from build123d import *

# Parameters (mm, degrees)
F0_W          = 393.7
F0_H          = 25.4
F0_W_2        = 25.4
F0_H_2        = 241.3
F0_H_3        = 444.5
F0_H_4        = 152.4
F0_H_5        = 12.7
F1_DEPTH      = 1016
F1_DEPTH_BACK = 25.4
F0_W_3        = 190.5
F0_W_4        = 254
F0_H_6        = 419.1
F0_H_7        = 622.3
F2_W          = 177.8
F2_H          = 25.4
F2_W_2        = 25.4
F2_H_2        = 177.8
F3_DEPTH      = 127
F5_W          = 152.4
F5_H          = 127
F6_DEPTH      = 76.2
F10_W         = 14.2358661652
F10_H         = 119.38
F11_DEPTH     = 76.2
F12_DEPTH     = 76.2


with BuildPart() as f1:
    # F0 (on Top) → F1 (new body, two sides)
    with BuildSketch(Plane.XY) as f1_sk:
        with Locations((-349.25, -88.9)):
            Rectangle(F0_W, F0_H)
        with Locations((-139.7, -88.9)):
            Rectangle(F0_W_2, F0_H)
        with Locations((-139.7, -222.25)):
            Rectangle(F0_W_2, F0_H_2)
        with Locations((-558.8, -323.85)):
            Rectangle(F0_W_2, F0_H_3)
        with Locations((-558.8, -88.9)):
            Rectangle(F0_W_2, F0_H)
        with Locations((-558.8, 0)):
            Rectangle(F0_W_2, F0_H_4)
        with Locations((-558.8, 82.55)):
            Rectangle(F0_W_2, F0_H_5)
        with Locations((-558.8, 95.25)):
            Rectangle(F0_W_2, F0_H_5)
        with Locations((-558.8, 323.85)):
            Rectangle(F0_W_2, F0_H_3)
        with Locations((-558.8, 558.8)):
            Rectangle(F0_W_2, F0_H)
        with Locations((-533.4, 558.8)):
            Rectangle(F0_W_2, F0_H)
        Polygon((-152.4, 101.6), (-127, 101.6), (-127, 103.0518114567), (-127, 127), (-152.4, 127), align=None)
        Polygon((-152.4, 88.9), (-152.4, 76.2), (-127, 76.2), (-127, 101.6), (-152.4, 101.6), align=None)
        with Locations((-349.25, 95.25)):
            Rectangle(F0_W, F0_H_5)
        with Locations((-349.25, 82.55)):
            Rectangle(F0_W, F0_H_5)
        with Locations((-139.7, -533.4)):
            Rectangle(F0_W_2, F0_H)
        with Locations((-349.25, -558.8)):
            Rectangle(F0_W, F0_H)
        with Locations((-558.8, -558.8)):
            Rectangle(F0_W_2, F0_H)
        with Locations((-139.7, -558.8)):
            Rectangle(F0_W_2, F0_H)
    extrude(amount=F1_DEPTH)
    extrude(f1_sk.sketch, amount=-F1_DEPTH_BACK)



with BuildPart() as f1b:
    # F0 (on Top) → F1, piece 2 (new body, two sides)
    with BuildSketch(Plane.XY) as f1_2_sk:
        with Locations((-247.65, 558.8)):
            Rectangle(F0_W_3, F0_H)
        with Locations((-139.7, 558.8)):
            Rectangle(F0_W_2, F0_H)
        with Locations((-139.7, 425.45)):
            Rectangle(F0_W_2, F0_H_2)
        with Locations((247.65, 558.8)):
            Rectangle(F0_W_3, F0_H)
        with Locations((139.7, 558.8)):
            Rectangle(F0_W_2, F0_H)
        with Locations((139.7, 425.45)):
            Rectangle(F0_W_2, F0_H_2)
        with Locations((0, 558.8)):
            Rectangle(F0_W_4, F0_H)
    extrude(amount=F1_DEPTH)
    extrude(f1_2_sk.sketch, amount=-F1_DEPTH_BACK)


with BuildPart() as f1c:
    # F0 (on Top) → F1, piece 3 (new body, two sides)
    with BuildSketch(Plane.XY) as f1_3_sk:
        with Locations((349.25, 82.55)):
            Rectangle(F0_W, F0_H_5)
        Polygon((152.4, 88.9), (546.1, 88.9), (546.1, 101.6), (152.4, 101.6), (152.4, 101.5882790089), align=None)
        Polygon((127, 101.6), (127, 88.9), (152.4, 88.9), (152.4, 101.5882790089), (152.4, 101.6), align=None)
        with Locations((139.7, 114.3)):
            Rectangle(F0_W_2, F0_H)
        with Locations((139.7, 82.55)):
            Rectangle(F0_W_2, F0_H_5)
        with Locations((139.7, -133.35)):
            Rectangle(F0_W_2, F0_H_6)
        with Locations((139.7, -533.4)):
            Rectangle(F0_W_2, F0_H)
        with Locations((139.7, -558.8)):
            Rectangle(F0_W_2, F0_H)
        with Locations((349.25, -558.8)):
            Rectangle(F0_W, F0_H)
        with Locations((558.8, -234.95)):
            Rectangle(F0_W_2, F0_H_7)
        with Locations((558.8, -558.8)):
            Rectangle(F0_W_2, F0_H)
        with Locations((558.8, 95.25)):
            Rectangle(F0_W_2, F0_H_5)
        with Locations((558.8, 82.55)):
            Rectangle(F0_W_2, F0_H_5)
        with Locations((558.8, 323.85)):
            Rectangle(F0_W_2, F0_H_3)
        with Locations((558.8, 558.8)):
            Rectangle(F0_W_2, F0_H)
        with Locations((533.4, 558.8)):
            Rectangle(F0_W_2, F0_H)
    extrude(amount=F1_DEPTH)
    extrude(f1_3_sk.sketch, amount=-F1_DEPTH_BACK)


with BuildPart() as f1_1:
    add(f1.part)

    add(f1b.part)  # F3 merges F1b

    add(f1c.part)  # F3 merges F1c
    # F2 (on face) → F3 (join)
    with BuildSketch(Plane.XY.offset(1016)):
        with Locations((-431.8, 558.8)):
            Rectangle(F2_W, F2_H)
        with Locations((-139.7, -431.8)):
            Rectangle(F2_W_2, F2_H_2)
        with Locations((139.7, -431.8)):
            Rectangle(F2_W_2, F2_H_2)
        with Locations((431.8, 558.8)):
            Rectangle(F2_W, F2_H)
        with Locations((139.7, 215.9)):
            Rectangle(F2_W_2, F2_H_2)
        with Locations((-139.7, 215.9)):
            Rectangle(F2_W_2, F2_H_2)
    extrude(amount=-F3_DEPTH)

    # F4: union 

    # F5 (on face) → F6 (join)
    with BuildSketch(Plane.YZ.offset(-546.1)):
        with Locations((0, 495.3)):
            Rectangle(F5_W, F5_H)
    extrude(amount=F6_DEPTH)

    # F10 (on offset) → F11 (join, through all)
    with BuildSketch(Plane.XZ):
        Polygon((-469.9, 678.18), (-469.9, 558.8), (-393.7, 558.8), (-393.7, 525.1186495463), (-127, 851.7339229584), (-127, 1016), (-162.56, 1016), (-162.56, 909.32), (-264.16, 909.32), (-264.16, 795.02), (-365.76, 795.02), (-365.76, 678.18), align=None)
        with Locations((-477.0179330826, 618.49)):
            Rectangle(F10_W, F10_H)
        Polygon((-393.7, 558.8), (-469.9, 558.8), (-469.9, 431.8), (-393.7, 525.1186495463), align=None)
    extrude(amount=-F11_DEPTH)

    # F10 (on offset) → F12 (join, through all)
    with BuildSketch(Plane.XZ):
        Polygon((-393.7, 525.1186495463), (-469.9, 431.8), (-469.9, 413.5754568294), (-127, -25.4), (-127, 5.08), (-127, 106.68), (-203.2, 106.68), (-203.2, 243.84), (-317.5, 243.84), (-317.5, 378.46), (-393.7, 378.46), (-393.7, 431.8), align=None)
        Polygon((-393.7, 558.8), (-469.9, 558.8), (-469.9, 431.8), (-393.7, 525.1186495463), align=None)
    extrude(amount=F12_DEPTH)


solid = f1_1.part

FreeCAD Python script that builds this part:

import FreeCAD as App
import Part
import Sketcher
from FreeCAD import Vector
Q = App.Units.Quantity


def add_polygon(sketch, points):
    """Adds a closed chain of lines whose ends are joined by coincident constraints."""
    first, n = sketch.GeometryCount, len(points)
    for a, b in zip(points, points[1:] + points[:1]):
        sketch.addGeometry(Part.LineSegment(App.Vector(*a, 0), App.Vector(*b, 0)), False)
    for i in range(n):
        sketch.addConstraint(Sketcher.Constraint("Coincident", first + i, 2, first + (i + 1) % n, 1))

doc = App.newDocument("Part")
body = doc.addObject("PartDesign::Body", "Body")

# Sketch on XY plane
sketch1 = body.newObject("Sketcher::SketchObject", "Sketch")
sketch1.AttachmentSupport = (doc.getObject("XY_Plane"), [""])
sketch1.MapMode = "FlatFace"
add_polygon(sketch1, [(-546.1, -101.6), (-152.4, -101.6), (-152.4, -342.9), (-127, -342.9), (-127, -76.2), (-546.1, -76.2), (-546.1, 76.2), (-127, 76.2), (-127, 127), (-152.4, 127), (-152.4, 101.6), (-546.1, 101.6), (-546.1, 546.1), (-520.7, 546.1), (-520.7, 571.5), (-571.5, 571.5), (-571.5, -571.5), (-127, -571.5), (-127, -520.7), (-152.4, -520.7), (-152.4, -546.1), (-546.1, -546.1)])  # lines 0-21
sketch1.addConstraint(Sketcher.Constraint("Horizontal", 0))
sketch1.addConstraint(Sketcher.Constraint("Vertical", 1))
sketch1.addConstraint(Sketcher.Constraint("Horizontal", 2))
sketch1.addConstraint(Sketcher.Constraint("Vertical", 3))
sketch1.addConstraint(Sketcher.Constraint("Horizontal", 4))
sketch1.addConstraint(Sketcher.Constraint("Vertical", 5))
sketch1.addConstraint(Sketcher.Constraint("Horizontal", 6))
sketch1.addConstraint(Sketcher.Constraint("Vertical", 7))
sketch1.addConstraint(Sketcher.Constraint("Horizontal", 8))
sketch1.addConstraint(Sketcher.Constraint("Vertical", 9))
sketch1.addConstraint(Sketcher.Constraint("Horizontal", 10))
sketch1.addConstraint(Sketcher.Constraint("Vertical", 11))
sketch1.addConstraint(Sketcher.Constraint("Horizontal", 12))
sketch1.addConstraint(Sketcher.Constraint("Vertical", 13))
sketch1.addConstraint(Sketcher.Constraint("Horizontal", 14))
sketch1.addConstraint(Sketcher.Constraint("Vertical", 15))
sketch1.addConstraint(Sketcher.Constraint("Horizontal", 16))
sketch1.addConstraint(Sketcher.Constraint("Vertical", 17))
sketch1.addConstraint(Sketcher.Constraint("Horizontal", 18))
sketch1.addConstraint(Sketcher.Constraint("Vertical", 19))
sketch1.addConstraint(Sketcher.Constraint("Horizontal", 20))
sketch1.addConstraint(Sketcher.Constraint("Vertical", 21))
sketch1.addConstraint(Sketcher.Constraint("Symmetric", 3, 2, 6, 2, -1))
sketch1.addConstraint(Sketcher.Constraint("Symmetric", 0, 2, 9, 2, -1))
sketch1.addConstraint(Sketcher.Constraint("Symmetric", 11, 2, 20, 2, -1))
sketch1.addConstraint(Sketcher.Constraint("Vertical", 5, 2, 10, 2))
sketch1.addConstraint(Sketcher.Constraint("Vertical", 7, 2, 16, 2))
sketch1.addConstraint(Sketcher.Constraint("Vertical", 9, 2, 18, 2))
sketch1.addConstraint(Sketcher.Constraint("Equal", 8, 12))
sketch1.addConstraint(Sketcher.Constraint("Equal", 14, 7))
sketch1.addConstraint(Sketcher.Constraint("Equal", 18, 9))
sketch1.addConstraint(Sketcher.Constraint("Equal", 16, 11))
sketch1.addConstraint(Sketcher.Constraint("Equal", 9, 13))
sketch1.addConstraint(Sketcher.Constraint("Equal", 7, 17))
sketch1.addConstraint(Sketcher.Constraint("Equal", 13, 19))
sketch1.addConstraint(Sketcher.Constraint("DistanceX", 2, 1, 2, 2, Q("1 in")))
sketch1.addConstraint(Sketcher.Constraint("DistanceX", 14, 2, 14, 1, Q("2 in")))
sketch1.addConstraint(Sketcher.Constraint("DistanceY", 5, 1, 5, 2, Q("6 in")))
sketch1.addConstraint(Sketcher.Constraint("DistanceY", 15, 2, 15, 1, Q("45 in")))
sketch1.addConstraint(Sketcher.Constraint("DistanceY", 1, 2, 1, 1, Q("9.5 in")))
sketch1.addConstraint(Sketcher.Constraint("DistanceX", 0, 2, -1, 1, Q("6 in")))
pad1 = body.newObject("PartDesign::Pad", "Pad")
pad1.Profile = sketch1
pad1.Type = "TwoLengths"
pad1.Length = Q("40 in")
pad1.Length2 = Q("1 in")
body2 = doc.addObject("PartDesign::Body", "Body001")

# Sketch on XY plane
sketch2 = body2.newObject("Sketcher::SketchObject", "Sketch001")
sketch2.AttachmentSupport = (doc.getObject("XY_Plane001"), [""])
sketch2.MapMode = "FlatFace"
add_polygon(sketch2, [(-342.9, 571.5), (-342.9, 546.1), (-152.4, 546.1), (-152.4, 304.8), (-127, 304.8), (-127, 546.1), (127, 546.1), (127, 304.8), (152.4, 304.8), (152.4, 546.1), (342.9, 546.1), (342.9, 571.5)])  # lines 0-11
sketch2.addConstraint(Sketcher.Constraint("Vertical", 0))
sketch2.addConstraint(Sketcher.Constraint("Horizontal", 1))
sketch2.addConstraint(Sketcher.Constraint("Vertical", 2))
sketch2.addConstraint(Sketcher.Constraint("Horizontal", 3))
sketch2.addConstraint(Sketcher.Constraint("Vertical", 4))
sketch2.addConstraint(Sketcher.Constraint("Horizontal", 5))
sketch2.addConstraint(Sketcher.Constraint("Vertical", 6))
sketch2.addConstraint(Sketcher.Constraint("Horizontal", 7))
sketch2.addConstraint(Sketcher.Constraint("Vertical", 8))
sketch2.addConstraint(Sketcher.Constraint("Horizontal", 9))
sketch2.addConstraint(Sketcher.Constraint("Vertical", 10))
sketch2.addConstraint(Sketcher.Constraint("Horizontal", 11))
sketch2.addConstraint(Sketcher.Constraint("Symmetric", 3, 2, 6, 2, -2))
sketch2.addConstraint(Sketcher.Constraint("Symmetric", 1, 2, 8, 2, -2))
sketch2.addConstraint(Sketcher.Constraint("Horizontal", 1, 2, 4, 2))
sketch2.addConstraint(Sketcher.Constraint("Equal", 1, 9))
sketch2.addConstraint(Sketcher.Constraint("Equal", 7, 0))
sketch2.addConstraint(Sketcher.Constraint("DistanceX", 3, 1, 3, 2, Q("1 in")))
sketch2.addConstraint(Sketcher.Constraint("DistanceX", 5, 1, 5, 2, Q("10 in")))
sketch2.addConstraint(Sketcher.Constraint("DistanceX", 11, 2, 11, 1, Q("27 in")))
sketch2.addConstraint(Sketcher.Constraint("DistanceY", 2, 2, 2, 1, Q("9.5 in")))
sketch2.addConstraint(Sketcher.Constraint("DistanceY", -1, 1, 2, 2, Q("12 in")))
pad2 = body2.newObject("PartDesign::Pad", "Pad001")
pad2.Profile = sketch2
pad2.Type = "TwoLengths"
pad2.Length = Q("40 in")
pad2.Length2 = Q("1 in")
body3 = doc.addObject("PartDesign::Body", "Body002")

# Sketch on XY plane
sketch3 = body3.newObject("Sketcher::SketchObject", "Sketch002")
sketch3.AttachmentSupport = (doc.getObject("XY_Plane002"), [""])
sketch3.MapMode = "FlatFace"
add_polygon(sketch3, [(546.1, 101.6), (152.4, 101.6), (152.4, 127), (127, 127), (127, -342.9), (152.4, -342.9), (152.4, 76.2), (546.1, 76.2), (546.1, -546.1), (152.4, -546.1), (152.4, -520.7), (127, -520.7), (127, -571.5), (571.5, -571.5), (571.5, 571.5), (520.7, 571.5), (520.7, 546.1), (546.1, 546.1)])  # lines 0-17
sketch3.addConstraint(Sketcher.Constraint("Horizontal", 0))
sketch3.addConstraint(Sketcher.Constraint("Vertical", 1))
sketch3.addConstraint(Sketcher.Constraint("Horizontal", 2))
sketch3.addConstraint(Sketcher.Constraint("Vertical", 3))
sketch3.addConstraint(Sketcher.Constraint("Horizontal", 4))
sketch3.addConstraint(Sketcher.Constraint("Vertical", 5))
sketch3.addConstraint(Sketcher.Constraint("Horizontal", 6))
sketch3.addConstraint(Sketcher.Constraint("Vertical", 7))
sketch3.addConstraint(Sketcher.Constraint("Horizontal", 8))
sketch3.addConstraint(Sketcher.Constraint("Vertical", 9))
sketch3.addConstraint(Sketcher.Constraint("Horizontal", 10))
sketch3.addConstraint(Sketcher.Constraint("Vertical", 11))
sketch3.addConstraint(Sketcher.Constraint("Horizontal", 12))
sketch3.addConstraint(Sketcher.Constraint("Vertical", 13))
sketch3.addConstraint(Sketcher.Constraint("Horizontal", 14))
sketch3.addConstraint(Sketcher.Constraint("Vertical", 15))
sketch3.addConstraint(Sketcher.Constraint("Horizontal", 16))
sketch3.addConstraint(Sketcher.Constraint("Vertical", 17))
sketch3.addConstraint(Sketcher.Constraint("Symmetric", 7, 2, 16, 2, -1))
sketch3.addConstraint(Sketcher.Constraint("Vertical", 1, 2, 4, 2))
sketch3.addConstraint(Sketcher.Constraint("Vertical", 5, 2, 8, 2))
sketch3.addConstraint(Sketcher.Constraint("Vertical", 3, 2, 10, 2))
sketch3.addConstraint(Sketcher.Constraint("Equal", 10, 16))
sketch3.addConstraint(Sketcher.Constraint("Equal", 16, 1))
sketch3.addConstraint(Sketcher.Constraint("Equal", 1, 9))
sketch3.addConstraint(Sketcher.Constraint("Equal", 14, 11))
sketch3.addConstraint(Sketcher.Constraint("Equal", 9, 15))
sketch3.addConstraint(Sketcher.Constraint("Equal", 12, 17))
sketch3.addConstraint(Sketcher.Constraint("DistanceX", 2, 2, 2, 1, Q("1 in")))
sketch3.addConstraint(Sketcher.Constraint("DistanceX", 14, 2, 14, 1, Q("2 in")))
sketch3.addConstraint(Sketcher.Constraint("DistanceY", 13, 1, 13, 2, Q("45 in")))
sketch3.addConstraint(Sketcher.Constraint("DistanceX", 0, 2, 0, 1, Q("15.5 in")))
sketch3.addConstraint(Sketcher.Constraint("DistanceY", 3, 2, 3, 1, Q("18.5 in")))
sketch3.addConstraint(Sketcher.Constraint("DistanceY", 5, 1, 5, 2, Q("16.5 in")))
sketch3.addConstraint(Sketcher.Constraint("DistanceX", -1, 1, 0, 2, Q("6 in")))
pad3 = body3.newObject("PartDesign::Pad", "Pad002")
pad3.Profile = sketch3
pad3.Type = "TwoLengths"
pad3.Length = Q("40 in")
pad3.Length2 = Q("1 in")
body.AllowCompound = True
doc.recompute()

boolean = body.newObject("PartDesign::Boolean", "Boolean")
boolean.Type = "Fuse"
boolean.addObjects([body2])
doc.recompute()

boolean2 = body.newObject("PartDesign::Boolean", "Boolean001")
boolean2.Type = "Fuse"
boolean2.addObjects([body3])

# Sketch on XY plane
sketch4 = body.newObject("Sketcher::SketchObject", "Sketch003")
sketch4.AttachmentSupport = (doc.getObject("XY_Plane"), [""])
sketch4.MapMode = "FlatFace"
sketch4.AttachmentOffset = App.Placement(Vector(0, 0, 40 * 25.4), App.Rotation())
add_polygon(sketch4, [(-520.7, 571.5), (-520.7, 546.1), (-342.9, 546.1), (-342.9, 571.5)])  # lines 0-3
add_polygon(sketch4, [(-152.4, -342.9), (-152.4, -520.7), (-127, -520.7), (-127, -342.9)])  # lines 4-7
add_polygon(sketch4, [(127, -342.9), (127, -520.7), (152.4, -520.7), (152.4, -342.9)])  # lines 8-11
add_polygon(sketch4, [(342.9, 571.5), (342.9, 546.1), (520.7, 546.1), (520.7, 571.5)])  # lines 12-15
add_polygon(sketch4, [(127, 304.8), (127, 127), (152.4, 127), (152.4, 304.8)])  # lines 16-19
add_polygon(sketch4, [(-152.4, 304.8), (-152.4, 127), (-127, 127), (-127, 304.8)])  # lines 20-23
sketch4.addConstraint(Sketcher.Constraint("Vertical", 0))
sketch4.addConstraint(Sketcher.Constraint("Horizontal", 1))
sketch4.addConstraint(Sketcher.Constraint("Vertical", 2))
sketch4.addConstraint(Sketcher.Constraint("Horizontal", 3))
sketch4.addConstraint(Sketcher.Constraint("Vertical", 4))
sketch4.addConstraint(Sketcher.Constraint("Horizontal", 5))
sketch4.addConstraint(Sketcher.Constraint("Vertical", 6))
sketch4.addConstraint(Sketcher.Constraint("Horizontal", 7))
sketch4.addConstraint(Sketcher.Constraint("Vertical", 8))
sketch4.addConstraint(Sketcher.Constraint("Horizontal", 9))
sketch4.addConstraint(Sketcher.Constraint("Vertical", 10))
sketch4.addConstraint(Sketcher.Constraint("Horizontal", 11))
sketch4.addConstraint(Sketcher.Constraint("Vertical", 12))
sketch4.addConstraint(Sketcher.Constraint("Horizontal", 13))
sketch4.addConstraint(Sketcher.Constraint("Vertical", 14))
sketch4.addConstraint(Sketcher.Constraint("Horizontal", 15))
sketch4.addConstraint(Sketcher.Constraint("Vertical", 16))
sketch4.addConstraint(Sketcher.Constraint("Horizontal", 17))
sketch4.addConstraint(Sketcher.Constraint("Vertical", 18))
sketch4.addConstraint(Sketcher.Constraint("Horizontal", 19))
sketch4.addConstraint(Sketcher.Constraint("Vertical", 20))
sketch4.addConstraint(Sketcher.Constraint("Horizontal", 21))
sketch4.addConstraint(Sketcher.Constraint("Vertical", 22))
sketch4.addConstraint(Sketcher.Constraint("Horizontal", 23))
sketch4.addConstraint(Sketcher.Constraint("Symmetric", 5, 2, 8, 2, -2))
sketch4.addConstraint(Sketcher.Constraint("Symmetric", 7, 2, 10, 2, -2))
sketch4.addConstraint(Sketcher.Constraint("Symmetric", 1, 2, 12, 2, -2))
sketch4.addConstraint(Sketcher.Constraint("Symmetric", 3, 2, 14, 2, -2))
sketch4.addConstraint(Sketcher.Constraint("Symmetric", 17, 2, 20, 2, -2))
sketch4.addConstraint(Sketcher.Constraint("Symmetric", 19, 2, 22, 2, -2))
sketch4.addConstraint(Sketcher.Constraint("Vertical", 11, 2, 16, 2))
sketch4.addConstraint(Sketcher.Constraint("Vertical", 10, 2, 17, 2))
sketch4.addConstraint(Sketcher.Constraint("Equal", 23, 0))
sketch4.addConstraint(Sketcher.Constraint("Equal", 15, 4))
sketch4.addConstraint(Sketcher.Constraint("Equal", 10, 16))
sketch4.addConstraint(Sketcher.Constraint("DistanceX", 1, 1, 1, 2, Q("7 in")))
sketch4.addConstraint(Sketcher.Constraint("DistanceX", 5, 1, 5, 2, Q("1 in")))
sketch4.addConstraint(Sketcher.Constraint("DistanceX", 4, 2, -1, 1, Q("6 in")))
sketch4.addConstraint(Sketcher.Constraint("DistanceY", -1, 1, 16, 2, Q("5 in")))
sketch4.addConstraint(Sketcher.Constraint("DistanceY", 4, 2, 1, 2, Q("42 in")))
sketch4.addConstraint(Sketcher.Constraint("DistanceX", 1, 2, 12, 2, Q("27 in")))
sketch4.addConstraint(Sketcher.Constraint("DistanceY", -1, 1, 0, 2, Q("21.5 in")))
pad4 = body.newObject("PartDesign::Pad", "Pad003")
pad4.Profile = sketch4
pad4.Length = Q("5 in")
pad4.Reversed = True

# Sketch on YZ plane
sketch5 = body.newObject("Sketcher::SketchObject", "Sketch004")
sketch5.AttachmentSupport = (doc.getObject("YZ_Plane"), [""])
sketch5.MapMode = "FlatFace"
sketch5.AttachmentOffset = App.Placement(Vector(0, 0, -21.5 * 25.4), App.Rotation())
add_polygon(sketch5, [(-76.2, 558.8), (-76.2, 431.8), (76.2, 431.8), (76.2, 558.8)])  # lines 0-3
sketch5.addConstraint(Sketcher.Constraint("Vertical", 0))
sketch5.addConstraint(Sketcher.Constraint("Horizontal", 1))
sketch5.addConstraint(Sketcher.Constraint("Vertical", 2))
sketch5.addConstraint(Sketcher.Constraint("Horizontal", 3))
sketch5.addConstraint(Sketcher.Constraint("DistanceX", 1, 1, 1, 2, Q("6 in")))
sketch5.addConstraint(Sketcher.Constraint("DistanceY", 0, 2, 0, 1, Q("5 in")))
sketch5.addConstraint(Sketcher.Constraint("DistanceX", 0, 2, -1, 1, Q("3 in")))
sketch5.addConstraint(Sketcher.Constraint("DistanceY", -1, 1, 0, 2, Q("17 in")))
pad5 = body.newObject("PartDesign::Pad", "Pad004")
pad5.Profile = sketch5
pad5.Length = Q("3 in")

# Sketch on XZ plane
sketch6 = body.newObject("Sketcher::SketchObject", "Sketch005")
sketch6.AttachmentSupport = (doc.getObject("XZ_Plane"), [""])
sketch6.MapMode = "FlatFace"
add_polygon(sketch6, [(-127, 851.733923), (-127, 1016), (-162.56, 1016), (-162.56, 909.32), (-264.16, 909.32), (-264.16, 795.02), (-365.76, 795.02), (-365.76, 678.18), (-484.135866, 678.18), (-484.135866, 558.8), (-469.9, 558.8), (-469.9, 431.8)])  # lines 0-11
sketch6.addConstraint(Sketcher.Constraint("Vertical", 0))
sketch6.addConstraint(Sketcher.Constraint("Horizontal", 1))
sketch6.addConstraint(Sketcher.Constraint("Vertical", 2))
sketch6.addConstraint(Sketcher.Constraint("Horizontal", 3))
sketch6.addConstraint(Sketcher.Constraint("Vertical", 4))
sketch6.addConstraint(Sketcher.Constraint("Horizontal", 5))
sketch6.addConstraint(Sketcher.Constraint("Vertical", 6))
sketch6.addConstraint(Sketcher.Constraint("Horizontal", 7))
sketch6.addConstraint(Sketcher.Constraint("Vertical", 8))
sketch6.addConstraint(Sketcher.Constraint("Horizontal", 9))
sketch6.addConstraint(Sketcher.Constraint("Vertical", 10))
sketch6.addConstraint(Sketcher.Constraint("Equal", 3, 5))
sketch6.addConstraint(Sketcher.Constraint("DistanceX", 3, 2, 3, 1, Q("4 in")))
sketch6.addConstraint(Sketcher.Constraint("DistanceY", 10, 2, 10, 1, Q("5 in")))
sketch6.addConstraint(Sketcher.Constraint("DistanceX", 1, 2, 1, 1, Q("1.4 in")))
sketch6.addConstraint(Sketcher.Constraint("DistanceY", 2, 2, 2, 1, Q("4.2 in")))
sketch6.addConstraint(Sketcher.Constraint("DistanceY", 4, 2, 4, 1, Q("4.5 in")))
sketch6.addConstraint(Sketcher.Constraint("DistanceY", 6, 2, 6, 1, Q("4.6 in")))
sketch6.addConstraint(Sketcher.Constraint("DistanceY", 8, 2, 8, 1, Q("4.7 in")))
sketch6.addConstraint(Sketcher.Constraint("DistanceX", 0, 2, -1, 1, Q("5 in")))
sketch6.addConstraint(Sketcher.Constraint("DistanceY", -1, 1, 0, 2, Q("40 in")))
sketch6.addConstraint(Sketcher.Constraint("DistanceX", 9, 2, -1, 1, Q("18.5 in")))
sketch6.addConstraint(Sketcher.Constraint("Distance", 11, 542.14842))
sketch6.addConstraint(Sketcher.Constraint("DistanceX", 7, 2, 7, 1, 118.375866))
pad6 = body.newObject("PartDesign::Pad", "Pad005")
pad6.Profile = sketch6
pad6.Length = Q("3 in")
pad6.Reversed = True

# Sketch on XZ plane
sketch7 = body.newObject("Sketcher::SketchObject", "Sketch006")
sketch7.AttachmentSupport = (doc.getObject("XZ_Plane"), [""])
sketch7.MapMode = "FlatFace"
add_polygon(sketch7, [(-469.9, 413.575457), (-127, -25.4), (-127, 106.68), (-203.2, 106.68), (-203.2, 243.84), (-317.5, 243.84), (-317.5, 378.46), (-393.7, 378.46), (-393.7, 558.8), (-469.9, 558.8)])  # lines 0-9
sketch7.addConstraint(Sketcher.Constraint("Vertical", 1))
sketch7.addConstraint(Sketcher.Constraint("Horizontal", 2))
sketch7.addConstraint(Sketcher.Constraint("Vertical", 3))
sketch7.addConstraint(Sketcher.Constraint("Horizontal", 4))
sketch7.addConstraint(Sketcher.Constraint("Vertical", 5))
sketch7.addConstraint(Sketcher.Constraint("Horizontal", 6))
sketch7.addConstraint(Sketcher.Constraint("Vertical", 7))
sketch7.addConstraint(Sketcher.Constraint("Horizontal", 8))
sketch7.addConstraint(Sketcher.Constraint("Vertical", 9))
sketch7.addConstraint(Sketcher.Constraint("Equal", 2, 6))
sketch7.addConstraint(Sketcher.Constraint("Equal", 6, 8))
sketch7.addConstraint(Sketcher.Constraint("DistanceX", 2, 2, 2, 1, Q("3 in")))
sketch7.addConstraint(Sketcher.Constraint("DistanceX", 4, 2, 4, 1, Q("4.5 in")))
sketch7.addConstraint(Sketcher.Constraint("DistanceY", 1, 1, 1, 2, Q("5.2 in")))
sketch7.addConstraint(Sketcher.Constraint("DistanceY", 3, 1, 3, 2, Q("5.4 in")))
sketch7.addConstraint(Sketcher.Constraint("DistanceY", 5, 1, 5, 2, Q("5.3 in")))
sketch7.addConstraint(Sketcher.Constraint("DistanceY", 7, 1, 7, 2, Q("7.1 in")))
sketch7.addConstraint(Sketcher.Constraint("DistanceX", 0, 2, -1, 1, Q("5 in")))
sketch7.addConstraint(Sketcher.Constraint("DistanceY", 0, 2, -1, 1, Q("1 in")))
sketch7.addConstraint(Sketcher.Constraint("DistanceY", 9, 2, 9, 1, 145.224543))
pad7 = body.newObject("PartDesign::Pad", "Pad006")
pad7.Profile = sketch7
pad7.Length = Q("3 in")

doc.recompute()
